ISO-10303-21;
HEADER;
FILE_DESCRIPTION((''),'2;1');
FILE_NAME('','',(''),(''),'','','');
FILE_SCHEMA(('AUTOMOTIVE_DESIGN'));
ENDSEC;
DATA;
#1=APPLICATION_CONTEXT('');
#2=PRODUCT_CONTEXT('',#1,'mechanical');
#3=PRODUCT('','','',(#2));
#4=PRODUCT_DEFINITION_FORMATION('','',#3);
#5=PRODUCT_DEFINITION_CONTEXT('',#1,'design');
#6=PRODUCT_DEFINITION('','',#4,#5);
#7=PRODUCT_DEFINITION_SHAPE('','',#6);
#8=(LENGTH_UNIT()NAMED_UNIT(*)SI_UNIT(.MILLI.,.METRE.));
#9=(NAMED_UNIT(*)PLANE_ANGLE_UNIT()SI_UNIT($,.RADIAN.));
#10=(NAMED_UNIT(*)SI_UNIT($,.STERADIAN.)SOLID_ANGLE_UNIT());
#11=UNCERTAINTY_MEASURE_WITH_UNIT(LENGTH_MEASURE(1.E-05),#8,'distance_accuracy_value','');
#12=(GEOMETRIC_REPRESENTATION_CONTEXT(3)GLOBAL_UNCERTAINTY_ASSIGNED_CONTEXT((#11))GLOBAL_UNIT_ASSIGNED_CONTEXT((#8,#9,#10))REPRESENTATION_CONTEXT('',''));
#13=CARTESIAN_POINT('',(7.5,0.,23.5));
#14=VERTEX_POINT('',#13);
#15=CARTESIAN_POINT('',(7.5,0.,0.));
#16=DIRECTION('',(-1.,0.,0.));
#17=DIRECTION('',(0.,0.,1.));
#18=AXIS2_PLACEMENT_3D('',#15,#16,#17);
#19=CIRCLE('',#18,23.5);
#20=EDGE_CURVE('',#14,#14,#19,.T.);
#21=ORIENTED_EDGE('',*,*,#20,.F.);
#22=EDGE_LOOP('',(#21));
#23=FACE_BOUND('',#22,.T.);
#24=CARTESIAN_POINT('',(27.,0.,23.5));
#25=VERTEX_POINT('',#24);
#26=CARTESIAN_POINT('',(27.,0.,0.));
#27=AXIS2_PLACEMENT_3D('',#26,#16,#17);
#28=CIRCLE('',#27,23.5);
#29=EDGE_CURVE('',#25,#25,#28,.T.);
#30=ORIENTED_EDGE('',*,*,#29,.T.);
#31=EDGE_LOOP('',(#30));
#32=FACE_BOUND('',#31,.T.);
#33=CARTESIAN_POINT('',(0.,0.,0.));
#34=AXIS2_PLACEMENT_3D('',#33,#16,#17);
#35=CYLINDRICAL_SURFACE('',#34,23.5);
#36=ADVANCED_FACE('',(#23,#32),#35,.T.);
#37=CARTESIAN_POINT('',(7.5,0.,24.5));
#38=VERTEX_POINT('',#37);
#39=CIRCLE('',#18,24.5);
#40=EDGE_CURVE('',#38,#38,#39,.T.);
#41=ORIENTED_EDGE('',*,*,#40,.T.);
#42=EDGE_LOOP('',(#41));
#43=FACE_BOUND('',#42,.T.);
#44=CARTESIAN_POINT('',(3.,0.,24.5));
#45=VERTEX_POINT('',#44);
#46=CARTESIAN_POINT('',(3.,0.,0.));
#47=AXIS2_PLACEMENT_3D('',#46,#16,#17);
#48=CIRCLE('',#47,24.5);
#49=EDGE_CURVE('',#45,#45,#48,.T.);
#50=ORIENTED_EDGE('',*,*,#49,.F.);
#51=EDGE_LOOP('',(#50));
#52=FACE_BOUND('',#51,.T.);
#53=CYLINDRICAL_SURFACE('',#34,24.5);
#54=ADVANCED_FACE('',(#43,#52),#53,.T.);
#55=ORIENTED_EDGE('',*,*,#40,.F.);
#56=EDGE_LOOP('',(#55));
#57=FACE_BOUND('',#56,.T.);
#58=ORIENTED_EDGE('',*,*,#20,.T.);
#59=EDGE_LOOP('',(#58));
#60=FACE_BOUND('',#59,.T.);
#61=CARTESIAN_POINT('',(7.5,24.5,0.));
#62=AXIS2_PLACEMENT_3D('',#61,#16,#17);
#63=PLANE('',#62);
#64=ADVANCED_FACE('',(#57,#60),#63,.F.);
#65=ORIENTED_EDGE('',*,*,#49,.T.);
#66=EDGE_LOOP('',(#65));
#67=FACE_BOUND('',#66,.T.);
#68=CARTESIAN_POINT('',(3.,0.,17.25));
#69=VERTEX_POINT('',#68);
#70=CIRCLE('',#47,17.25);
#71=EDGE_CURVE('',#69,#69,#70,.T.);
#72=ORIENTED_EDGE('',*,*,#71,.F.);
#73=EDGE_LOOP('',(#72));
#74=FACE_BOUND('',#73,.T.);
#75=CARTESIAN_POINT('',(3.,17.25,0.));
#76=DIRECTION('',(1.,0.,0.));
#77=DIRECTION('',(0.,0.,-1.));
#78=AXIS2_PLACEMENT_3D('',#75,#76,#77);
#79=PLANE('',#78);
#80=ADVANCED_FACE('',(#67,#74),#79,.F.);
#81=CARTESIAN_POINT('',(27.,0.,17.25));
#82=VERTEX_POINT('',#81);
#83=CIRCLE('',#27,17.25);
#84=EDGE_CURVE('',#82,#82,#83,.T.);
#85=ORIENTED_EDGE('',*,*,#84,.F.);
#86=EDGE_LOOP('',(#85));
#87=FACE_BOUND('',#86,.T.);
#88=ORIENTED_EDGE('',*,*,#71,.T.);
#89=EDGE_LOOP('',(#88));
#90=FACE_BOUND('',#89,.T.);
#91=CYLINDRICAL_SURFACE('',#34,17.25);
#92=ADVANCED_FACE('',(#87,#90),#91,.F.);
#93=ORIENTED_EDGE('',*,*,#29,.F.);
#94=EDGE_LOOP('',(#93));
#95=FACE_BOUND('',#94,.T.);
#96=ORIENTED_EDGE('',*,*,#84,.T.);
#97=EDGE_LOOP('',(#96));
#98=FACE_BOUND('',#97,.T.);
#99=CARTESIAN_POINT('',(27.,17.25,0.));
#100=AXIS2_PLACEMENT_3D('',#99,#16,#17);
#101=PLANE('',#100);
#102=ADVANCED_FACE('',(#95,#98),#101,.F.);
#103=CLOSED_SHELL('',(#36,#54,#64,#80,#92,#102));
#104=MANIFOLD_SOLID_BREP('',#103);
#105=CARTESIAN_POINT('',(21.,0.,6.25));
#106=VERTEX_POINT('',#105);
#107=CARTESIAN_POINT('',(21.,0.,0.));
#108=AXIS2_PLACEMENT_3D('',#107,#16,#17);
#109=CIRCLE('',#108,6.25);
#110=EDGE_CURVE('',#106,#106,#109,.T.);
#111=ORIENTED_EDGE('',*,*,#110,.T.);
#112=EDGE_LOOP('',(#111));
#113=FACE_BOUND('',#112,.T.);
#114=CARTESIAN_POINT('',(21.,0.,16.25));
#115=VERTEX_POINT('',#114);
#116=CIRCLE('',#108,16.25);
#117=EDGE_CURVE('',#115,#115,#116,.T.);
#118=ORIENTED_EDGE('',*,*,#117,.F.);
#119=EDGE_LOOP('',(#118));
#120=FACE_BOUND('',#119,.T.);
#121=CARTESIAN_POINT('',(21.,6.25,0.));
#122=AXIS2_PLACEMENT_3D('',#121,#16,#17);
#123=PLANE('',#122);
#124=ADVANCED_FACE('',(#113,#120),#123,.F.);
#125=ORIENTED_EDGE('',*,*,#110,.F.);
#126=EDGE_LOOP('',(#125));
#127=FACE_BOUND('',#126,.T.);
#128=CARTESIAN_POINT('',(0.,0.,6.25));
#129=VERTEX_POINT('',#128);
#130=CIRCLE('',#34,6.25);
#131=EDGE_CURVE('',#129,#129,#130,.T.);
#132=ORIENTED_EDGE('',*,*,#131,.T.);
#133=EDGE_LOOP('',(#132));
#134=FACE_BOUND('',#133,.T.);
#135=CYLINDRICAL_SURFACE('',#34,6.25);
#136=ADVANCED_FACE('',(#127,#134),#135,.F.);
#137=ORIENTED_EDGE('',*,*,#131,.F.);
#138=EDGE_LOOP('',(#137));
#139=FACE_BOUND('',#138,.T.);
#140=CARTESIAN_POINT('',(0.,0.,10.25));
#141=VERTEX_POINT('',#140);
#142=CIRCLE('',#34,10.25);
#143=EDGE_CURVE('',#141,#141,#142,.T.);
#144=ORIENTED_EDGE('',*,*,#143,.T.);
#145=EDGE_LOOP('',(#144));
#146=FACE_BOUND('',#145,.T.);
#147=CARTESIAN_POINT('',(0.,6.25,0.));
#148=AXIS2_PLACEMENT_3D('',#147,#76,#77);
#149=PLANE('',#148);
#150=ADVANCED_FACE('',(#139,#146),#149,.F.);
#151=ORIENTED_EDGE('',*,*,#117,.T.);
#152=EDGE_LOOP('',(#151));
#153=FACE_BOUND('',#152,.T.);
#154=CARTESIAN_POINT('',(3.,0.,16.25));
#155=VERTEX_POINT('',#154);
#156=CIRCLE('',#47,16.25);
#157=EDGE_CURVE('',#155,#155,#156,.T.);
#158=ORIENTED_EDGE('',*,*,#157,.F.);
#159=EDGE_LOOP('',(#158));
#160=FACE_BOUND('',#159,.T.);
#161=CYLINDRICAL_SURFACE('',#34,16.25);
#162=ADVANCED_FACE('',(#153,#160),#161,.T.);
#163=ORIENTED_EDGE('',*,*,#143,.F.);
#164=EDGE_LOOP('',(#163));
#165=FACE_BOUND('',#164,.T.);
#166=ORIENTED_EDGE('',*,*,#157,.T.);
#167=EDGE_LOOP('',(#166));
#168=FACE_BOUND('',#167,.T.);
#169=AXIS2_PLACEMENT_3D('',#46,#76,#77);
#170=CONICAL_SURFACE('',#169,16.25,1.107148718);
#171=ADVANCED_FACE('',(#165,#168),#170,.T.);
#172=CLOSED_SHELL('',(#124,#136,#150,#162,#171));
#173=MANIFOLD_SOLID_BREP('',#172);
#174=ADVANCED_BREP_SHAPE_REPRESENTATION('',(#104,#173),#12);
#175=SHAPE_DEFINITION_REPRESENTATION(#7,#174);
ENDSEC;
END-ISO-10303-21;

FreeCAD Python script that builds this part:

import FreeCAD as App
import Part
import Sketcher
from FreeCAD import Vector
Q = App.Units.Quantity


def add_polygon(sketch, points):
    """Adds a closed chain of lines whose ends are joined by coincident constraints."""
    first, n = sketch.GeometryCount, len(points)
    for a, b in zip(points, points[1:] + points[:1]):
        sketch.addGeometry(Part.LineSegment(App.Vector(*a, 0), App.Vector(*b, 0)), False)
    for i in range(n):
        sketch.addConstraint(Sketcher.Constraint("Coincident", first + i, 2, first + (i + 1) % n, 1))

doc = App.newDocument("Part")
body = doc.addObject("PartDesign::Body", "Body")
body.AllowCompound = True

# Sketch on XY plane
sketch1 = body.newObject("Sketcher::SketchObject", "Sketch")
sketch1.AttachmentSupport = (doc.getObject("XY_Plane"), [""])
sketch1.MapMode = "FlatFace"
add_polygon(sketch1, [(0, 6.2), (21, 6.2), (21, 16.2), (3, 16.2), (0, 10.2)])  # lines 0-4
add_polygon(sketch1, [(7.5, 23.5), (7.5, 24.5), (3, 24.5), (3, 17.2), (27, 17.2), (27, 23.5)])  # lines 5-10
sketch1.addConstraint(Sketcher.Constraint("Horizontal", 0))
sketch1.addConstraint(Sketcher.Constraint("Vertical", 1))
sketch1.addConstraint(Sketcher.Constraint("Horizontal", 2))
sketch1.addConstraint(Sketcher.Constraint("Vertical", 4))
sketch1.addConstraint(Sketcher.Constraint("Vertical", 5))
sketch1.addConstraint(Sketcher.Constraint("Horizontal", 6))
sketch1.addConstraint(Sketcher.Constraint("Vertical", 7))
sketch1.addConstraint(Sketcher.Constraint("Horizontal", 8))
sketch1.addConstraint(Sketcher.Constraint("Vertical", 9))
sketch1.addConstraint(Sketcher.Constraint("Horizontal", 10))
sketch1.addConstraint(Sketcher.Constraint("PointOnObject", 3, 2, -2))
sketch1.addConstraint(Sketcher.Constraint("Vertical", 2, 2, 6, 2))
sketch1.addConstraint(Sketcher.Constraint("DistanceX", 0, 1, 0, 2, Q("21 mm")))
sketch1.addConstraint(Sketcher.Constraint("DistanceX", 2, 2, 2, 1, Q("18 mm")))
sketch1.addConstraint(Sketcher.Constraint("DistanceX", 8, 1, 8, 2, Q("24 mm")))
sketch1.addConstraint(Sketcher.Constraint("DistanceY", 1, 1, 1, 2, Q("10 mm")))
sketch1.addConstraint(Sketcher.Constraint("DistanceY", 4, 2, 4, 1, Q("4 mm")))
sketch1.addConstraint(Sketcher.Constraint("DistanceY", 5, 1, 5, 2, Q("1 mm")))
sketch1.addConstraint(Sketcher.Constraint("DistanceX", 6, 2, 6, 1, Q("4.5 mm")))
sketch1.addConstraint(Sketcher.Constraint("DistanceY", 2, 2, 7, 2, Q("1 mm")))
sketch1.addConstraint(Sketcher.Constraint("DistanceY", 7, 2, 7, 1, Q("7.25 mm")))
sketch1.addConstraint(Sketcher.Constraint("DistanceY", -1, 1, 5, 2, Q("24.5 mm")))
revolution = body.newObject("PartDesign::Revolution", "Revolution")
revolution.Profile = sketch1
revolution.ReferenceAxis = (sketch1, ["H_Axis"])
revolution.Angle = 360

doc.recompute()
